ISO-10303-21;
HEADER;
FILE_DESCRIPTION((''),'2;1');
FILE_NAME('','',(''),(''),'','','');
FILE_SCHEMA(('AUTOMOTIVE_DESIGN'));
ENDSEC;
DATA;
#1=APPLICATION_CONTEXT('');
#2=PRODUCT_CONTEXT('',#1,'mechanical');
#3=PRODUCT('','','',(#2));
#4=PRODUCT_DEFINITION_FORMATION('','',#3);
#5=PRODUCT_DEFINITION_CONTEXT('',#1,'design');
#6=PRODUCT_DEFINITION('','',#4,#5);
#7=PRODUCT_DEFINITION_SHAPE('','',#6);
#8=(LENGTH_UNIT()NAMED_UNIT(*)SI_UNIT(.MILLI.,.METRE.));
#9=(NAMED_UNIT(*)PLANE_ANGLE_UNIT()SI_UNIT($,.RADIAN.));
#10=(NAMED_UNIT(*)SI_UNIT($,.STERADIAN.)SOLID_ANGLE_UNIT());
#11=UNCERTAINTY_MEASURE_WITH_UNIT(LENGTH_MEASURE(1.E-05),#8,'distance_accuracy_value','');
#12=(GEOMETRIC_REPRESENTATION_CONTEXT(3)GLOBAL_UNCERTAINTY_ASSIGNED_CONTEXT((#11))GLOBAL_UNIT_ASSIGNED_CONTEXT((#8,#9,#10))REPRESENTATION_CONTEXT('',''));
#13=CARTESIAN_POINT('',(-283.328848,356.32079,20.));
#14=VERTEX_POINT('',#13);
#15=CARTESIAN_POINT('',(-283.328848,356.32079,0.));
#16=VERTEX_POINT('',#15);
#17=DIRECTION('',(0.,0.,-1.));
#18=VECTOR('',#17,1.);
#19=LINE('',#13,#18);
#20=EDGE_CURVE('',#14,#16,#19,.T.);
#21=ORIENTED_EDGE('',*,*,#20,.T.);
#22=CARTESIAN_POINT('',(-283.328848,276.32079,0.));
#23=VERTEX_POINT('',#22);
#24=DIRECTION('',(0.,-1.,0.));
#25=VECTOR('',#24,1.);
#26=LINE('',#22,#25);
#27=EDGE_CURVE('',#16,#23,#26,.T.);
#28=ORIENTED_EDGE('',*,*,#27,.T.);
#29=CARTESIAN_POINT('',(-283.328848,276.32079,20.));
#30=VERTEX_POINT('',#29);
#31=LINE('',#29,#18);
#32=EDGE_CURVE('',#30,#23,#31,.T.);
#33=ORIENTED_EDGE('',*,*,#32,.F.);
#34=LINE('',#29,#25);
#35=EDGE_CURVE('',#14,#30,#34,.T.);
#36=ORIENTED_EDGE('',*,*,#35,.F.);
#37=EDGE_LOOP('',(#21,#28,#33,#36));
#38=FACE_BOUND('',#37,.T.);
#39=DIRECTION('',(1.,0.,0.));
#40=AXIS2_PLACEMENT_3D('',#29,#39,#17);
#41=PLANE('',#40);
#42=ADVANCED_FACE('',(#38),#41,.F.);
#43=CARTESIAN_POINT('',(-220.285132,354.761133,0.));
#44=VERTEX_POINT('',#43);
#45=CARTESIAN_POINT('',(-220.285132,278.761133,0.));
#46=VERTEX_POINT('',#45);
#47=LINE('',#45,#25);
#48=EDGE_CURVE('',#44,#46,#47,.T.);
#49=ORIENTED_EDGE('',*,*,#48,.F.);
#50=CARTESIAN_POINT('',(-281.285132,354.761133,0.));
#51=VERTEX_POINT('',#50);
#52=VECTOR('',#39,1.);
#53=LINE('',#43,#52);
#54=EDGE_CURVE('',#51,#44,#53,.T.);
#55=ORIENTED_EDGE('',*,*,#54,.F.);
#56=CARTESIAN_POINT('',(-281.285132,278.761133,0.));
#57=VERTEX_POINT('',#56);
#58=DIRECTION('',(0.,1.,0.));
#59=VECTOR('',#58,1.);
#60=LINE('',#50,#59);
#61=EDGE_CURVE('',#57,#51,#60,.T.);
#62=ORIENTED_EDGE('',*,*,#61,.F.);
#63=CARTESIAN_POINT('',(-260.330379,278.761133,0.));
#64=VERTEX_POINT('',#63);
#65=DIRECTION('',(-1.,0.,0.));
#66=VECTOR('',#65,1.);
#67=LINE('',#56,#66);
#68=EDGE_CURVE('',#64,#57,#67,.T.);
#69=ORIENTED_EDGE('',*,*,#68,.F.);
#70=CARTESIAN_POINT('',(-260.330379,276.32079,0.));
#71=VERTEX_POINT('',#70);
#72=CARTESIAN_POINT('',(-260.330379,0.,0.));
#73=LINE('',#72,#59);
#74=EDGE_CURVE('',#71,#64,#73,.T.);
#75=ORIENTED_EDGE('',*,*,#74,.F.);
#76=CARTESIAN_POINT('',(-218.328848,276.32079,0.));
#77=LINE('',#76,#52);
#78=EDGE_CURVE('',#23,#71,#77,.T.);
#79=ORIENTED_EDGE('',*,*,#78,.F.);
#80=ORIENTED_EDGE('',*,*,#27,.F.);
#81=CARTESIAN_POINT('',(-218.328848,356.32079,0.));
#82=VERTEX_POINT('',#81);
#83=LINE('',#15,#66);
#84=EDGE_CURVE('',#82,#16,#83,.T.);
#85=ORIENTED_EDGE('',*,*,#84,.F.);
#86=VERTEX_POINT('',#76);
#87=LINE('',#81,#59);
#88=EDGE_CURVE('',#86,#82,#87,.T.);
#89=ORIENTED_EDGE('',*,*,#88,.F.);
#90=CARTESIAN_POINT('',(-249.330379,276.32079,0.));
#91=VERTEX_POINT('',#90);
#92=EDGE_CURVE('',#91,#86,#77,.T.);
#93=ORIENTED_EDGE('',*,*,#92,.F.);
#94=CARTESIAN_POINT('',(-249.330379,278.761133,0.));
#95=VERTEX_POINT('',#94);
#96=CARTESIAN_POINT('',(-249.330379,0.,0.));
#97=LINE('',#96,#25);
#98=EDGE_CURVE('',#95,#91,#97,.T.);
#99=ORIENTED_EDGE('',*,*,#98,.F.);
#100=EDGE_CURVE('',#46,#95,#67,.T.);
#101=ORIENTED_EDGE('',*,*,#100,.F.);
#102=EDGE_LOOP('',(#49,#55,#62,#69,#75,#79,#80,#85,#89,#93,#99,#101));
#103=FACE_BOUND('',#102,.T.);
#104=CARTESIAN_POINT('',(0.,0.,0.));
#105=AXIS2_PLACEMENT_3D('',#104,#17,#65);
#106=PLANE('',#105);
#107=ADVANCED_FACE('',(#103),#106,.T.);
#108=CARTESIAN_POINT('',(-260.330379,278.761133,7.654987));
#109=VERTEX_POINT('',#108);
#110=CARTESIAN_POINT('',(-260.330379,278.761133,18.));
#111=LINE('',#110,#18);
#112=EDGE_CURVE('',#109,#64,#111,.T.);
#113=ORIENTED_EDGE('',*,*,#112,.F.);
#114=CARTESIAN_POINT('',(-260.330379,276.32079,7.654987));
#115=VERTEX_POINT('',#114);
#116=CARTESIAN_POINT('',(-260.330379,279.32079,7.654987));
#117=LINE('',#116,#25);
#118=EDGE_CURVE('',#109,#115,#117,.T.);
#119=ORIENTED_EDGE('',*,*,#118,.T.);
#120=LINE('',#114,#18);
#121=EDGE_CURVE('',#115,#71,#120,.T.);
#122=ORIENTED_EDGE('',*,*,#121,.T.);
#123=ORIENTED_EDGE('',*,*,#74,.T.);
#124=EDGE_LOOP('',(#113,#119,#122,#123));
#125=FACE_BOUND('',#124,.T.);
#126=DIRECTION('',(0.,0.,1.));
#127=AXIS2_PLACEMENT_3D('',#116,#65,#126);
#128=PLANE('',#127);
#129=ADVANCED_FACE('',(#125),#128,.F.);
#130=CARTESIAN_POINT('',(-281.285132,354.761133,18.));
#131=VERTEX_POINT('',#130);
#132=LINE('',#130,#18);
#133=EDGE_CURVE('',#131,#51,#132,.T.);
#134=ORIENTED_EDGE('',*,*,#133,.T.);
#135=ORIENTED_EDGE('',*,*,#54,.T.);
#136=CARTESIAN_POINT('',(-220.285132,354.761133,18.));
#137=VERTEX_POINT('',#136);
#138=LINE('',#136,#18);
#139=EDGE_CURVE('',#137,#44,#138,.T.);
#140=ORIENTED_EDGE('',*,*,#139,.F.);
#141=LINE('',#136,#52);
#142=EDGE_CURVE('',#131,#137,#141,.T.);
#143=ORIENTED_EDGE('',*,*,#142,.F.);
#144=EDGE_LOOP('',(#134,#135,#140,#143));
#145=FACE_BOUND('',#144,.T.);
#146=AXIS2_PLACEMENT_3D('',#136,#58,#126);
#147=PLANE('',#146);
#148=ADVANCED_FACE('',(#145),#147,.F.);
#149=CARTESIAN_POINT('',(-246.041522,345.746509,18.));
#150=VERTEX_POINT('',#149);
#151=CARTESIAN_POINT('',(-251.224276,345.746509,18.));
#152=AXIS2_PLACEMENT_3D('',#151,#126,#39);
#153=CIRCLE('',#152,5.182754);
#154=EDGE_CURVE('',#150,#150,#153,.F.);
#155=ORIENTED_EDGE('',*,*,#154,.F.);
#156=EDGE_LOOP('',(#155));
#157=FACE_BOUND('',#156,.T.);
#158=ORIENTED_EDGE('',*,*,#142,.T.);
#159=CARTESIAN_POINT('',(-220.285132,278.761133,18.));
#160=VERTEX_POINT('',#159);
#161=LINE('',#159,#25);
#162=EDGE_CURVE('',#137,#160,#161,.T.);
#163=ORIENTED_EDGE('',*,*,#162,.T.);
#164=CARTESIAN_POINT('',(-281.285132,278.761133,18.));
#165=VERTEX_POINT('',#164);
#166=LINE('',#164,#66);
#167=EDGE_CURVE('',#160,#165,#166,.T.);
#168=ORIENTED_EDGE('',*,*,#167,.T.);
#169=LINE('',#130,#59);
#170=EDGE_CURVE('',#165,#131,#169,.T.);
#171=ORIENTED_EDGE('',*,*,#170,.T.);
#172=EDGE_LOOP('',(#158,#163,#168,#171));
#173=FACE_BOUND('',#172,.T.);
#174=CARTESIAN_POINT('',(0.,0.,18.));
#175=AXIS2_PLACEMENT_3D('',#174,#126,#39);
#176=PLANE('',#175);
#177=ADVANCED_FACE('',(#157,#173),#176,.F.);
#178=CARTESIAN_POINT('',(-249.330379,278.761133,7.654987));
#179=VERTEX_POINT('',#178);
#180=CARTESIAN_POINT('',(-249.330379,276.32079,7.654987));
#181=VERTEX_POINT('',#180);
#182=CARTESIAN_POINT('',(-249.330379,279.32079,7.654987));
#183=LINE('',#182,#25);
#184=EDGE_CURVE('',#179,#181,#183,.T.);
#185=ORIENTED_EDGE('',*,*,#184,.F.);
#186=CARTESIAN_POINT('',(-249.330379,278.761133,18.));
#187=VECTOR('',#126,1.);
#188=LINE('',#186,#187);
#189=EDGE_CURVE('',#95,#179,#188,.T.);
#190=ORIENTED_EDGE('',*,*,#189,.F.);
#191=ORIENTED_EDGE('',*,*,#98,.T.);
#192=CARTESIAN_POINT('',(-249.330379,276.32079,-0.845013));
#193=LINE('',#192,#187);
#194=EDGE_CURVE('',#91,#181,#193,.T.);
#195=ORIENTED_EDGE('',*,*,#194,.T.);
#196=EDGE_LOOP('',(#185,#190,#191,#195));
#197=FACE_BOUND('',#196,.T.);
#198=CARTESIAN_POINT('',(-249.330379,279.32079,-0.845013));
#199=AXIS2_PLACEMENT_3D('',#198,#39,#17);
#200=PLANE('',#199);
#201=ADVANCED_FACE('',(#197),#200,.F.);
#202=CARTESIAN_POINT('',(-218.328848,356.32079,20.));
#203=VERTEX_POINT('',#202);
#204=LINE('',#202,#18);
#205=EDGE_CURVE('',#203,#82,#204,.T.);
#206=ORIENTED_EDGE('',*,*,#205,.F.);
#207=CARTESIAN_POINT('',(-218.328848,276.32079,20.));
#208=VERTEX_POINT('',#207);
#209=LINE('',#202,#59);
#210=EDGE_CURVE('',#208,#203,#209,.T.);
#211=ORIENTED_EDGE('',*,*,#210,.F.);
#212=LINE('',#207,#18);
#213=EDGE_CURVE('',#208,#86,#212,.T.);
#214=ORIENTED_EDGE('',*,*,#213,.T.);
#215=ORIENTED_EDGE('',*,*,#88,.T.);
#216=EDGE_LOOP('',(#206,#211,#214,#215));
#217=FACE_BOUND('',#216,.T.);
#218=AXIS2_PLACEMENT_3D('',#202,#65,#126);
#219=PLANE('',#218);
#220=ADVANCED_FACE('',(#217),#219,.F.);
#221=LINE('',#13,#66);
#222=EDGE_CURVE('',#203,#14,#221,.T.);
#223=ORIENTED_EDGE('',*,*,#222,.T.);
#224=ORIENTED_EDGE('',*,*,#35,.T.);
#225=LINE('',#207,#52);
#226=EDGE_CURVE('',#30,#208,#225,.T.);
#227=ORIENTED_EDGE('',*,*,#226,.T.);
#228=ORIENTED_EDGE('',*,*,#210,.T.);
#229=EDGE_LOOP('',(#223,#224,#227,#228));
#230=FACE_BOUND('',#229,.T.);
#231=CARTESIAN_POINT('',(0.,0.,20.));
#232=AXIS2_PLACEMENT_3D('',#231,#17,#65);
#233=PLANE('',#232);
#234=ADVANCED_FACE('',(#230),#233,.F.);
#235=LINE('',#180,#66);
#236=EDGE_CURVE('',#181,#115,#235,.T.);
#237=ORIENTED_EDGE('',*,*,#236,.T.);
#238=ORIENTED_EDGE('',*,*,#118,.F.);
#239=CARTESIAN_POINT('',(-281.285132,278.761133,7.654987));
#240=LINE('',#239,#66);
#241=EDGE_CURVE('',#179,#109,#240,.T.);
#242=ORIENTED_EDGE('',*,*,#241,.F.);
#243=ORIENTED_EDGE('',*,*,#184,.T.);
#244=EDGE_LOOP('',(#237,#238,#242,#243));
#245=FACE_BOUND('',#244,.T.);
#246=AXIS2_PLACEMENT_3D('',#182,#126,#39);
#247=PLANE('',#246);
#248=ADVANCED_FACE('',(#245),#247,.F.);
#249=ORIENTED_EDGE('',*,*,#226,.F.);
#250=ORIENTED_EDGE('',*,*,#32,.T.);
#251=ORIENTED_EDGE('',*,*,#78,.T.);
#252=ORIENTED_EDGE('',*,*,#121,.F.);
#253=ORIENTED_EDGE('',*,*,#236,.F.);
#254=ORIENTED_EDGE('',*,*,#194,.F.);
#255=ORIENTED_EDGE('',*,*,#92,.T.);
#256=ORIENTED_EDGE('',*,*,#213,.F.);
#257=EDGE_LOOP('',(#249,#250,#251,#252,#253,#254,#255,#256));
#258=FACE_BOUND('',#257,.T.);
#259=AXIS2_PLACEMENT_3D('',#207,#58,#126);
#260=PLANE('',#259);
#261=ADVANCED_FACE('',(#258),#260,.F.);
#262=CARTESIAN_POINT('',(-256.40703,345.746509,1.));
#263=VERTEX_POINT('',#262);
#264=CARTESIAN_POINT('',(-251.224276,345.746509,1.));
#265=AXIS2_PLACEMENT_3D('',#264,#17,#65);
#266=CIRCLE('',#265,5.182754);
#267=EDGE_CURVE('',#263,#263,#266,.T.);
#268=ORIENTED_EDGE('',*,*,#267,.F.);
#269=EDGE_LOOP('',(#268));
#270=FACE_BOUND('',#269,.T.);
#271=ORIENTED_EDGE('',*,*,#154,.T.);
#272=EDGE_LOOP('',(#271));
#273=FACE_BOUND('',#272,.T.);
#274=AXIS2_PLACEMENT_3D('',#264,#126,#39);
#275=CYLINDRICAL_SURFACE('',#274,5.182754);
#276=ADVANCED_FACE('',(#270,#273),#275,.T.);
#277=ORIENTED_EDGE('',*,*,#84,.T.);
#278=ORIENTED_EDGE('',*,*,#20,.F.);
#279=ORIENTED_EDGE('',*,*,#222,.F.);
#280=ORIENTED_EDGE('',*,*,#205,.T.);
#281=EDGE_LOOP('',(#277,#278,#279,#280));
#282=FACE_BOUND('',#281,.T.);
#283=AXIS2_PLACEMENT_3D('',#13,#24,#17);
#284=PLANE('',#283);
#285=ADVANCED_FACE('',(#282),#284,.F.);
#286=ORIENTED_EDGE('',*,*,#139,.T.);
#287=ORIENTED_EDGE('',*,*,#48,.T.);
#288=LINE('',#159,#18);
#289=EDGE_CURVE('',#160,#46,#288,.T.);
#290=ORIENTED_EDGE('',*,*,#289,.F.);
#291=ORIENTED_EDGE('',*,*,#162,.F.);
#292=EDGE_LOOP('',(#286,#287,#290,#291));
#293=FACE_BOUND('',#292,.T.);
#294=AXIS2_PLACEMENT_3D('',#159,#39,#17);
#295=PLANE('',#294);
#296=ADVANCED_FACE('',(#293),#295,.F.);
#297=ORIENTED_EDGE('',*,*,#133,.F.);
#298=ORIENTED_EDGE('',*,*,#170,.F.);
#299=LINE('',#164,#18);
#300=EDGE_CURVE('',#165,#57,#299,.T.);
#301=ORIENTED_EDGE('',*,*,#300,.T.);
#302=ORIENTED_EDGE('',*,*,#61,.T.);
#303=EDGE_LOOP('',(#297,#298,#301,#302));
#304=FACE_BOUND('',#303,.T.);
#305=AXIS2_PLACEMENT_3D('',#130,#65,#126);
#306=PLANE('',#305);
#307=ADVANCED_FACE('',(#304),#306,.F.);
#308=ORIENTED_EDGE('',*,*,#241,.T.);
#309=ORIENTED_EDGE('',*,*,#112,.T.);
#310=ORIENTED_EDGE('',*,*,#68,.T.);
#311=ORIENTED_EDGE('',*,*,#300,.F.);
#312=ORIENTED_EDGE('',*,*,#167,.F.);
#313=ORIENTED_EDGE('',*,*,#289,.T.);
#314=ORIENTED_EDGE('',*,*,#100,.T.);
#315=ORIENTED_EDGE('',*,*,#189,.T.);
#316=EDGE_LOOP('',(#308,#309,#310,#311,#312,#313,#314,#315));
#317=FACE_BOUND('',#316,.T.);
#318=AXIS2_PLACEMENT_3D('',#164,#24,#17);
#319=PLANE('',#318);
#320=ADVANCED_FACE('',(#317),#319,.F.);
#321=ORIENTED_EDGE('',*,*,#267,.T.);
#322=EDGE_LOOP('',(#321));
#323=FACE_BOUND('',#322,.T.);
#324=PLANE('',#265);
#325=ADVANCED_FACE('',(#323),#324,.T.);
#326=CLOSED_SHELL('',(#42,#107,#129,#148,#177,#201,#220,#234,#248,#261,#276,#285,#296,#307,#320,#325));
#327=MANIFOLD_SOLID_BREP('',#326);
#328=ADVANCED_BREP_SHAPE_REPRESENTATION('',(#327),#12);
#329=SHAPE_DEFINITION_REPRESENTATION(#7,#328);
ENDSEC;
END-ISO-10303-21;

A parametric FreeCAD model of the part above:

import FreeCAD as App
import Part
import Sketcher
from FreeCAD import Vector


def add_polygon(sketch, points):
    """Adds a closed chain of lines whose ends are joined by coincident constraints."""
    first, n = sketch.GeometryCount, len(points)
    for a, b in zip(points, points[1:] + points[:1]):
        sketch.addGeometry(Part.LineSegment(App.Vector(*a, 0), App.Vector(*b, 0)), False)
    for i in range(n):
        sketch.addConstraint(Sketcher.Constraint("Coincident", first + i, 2, first + (i + 1) % n, 1))

doc = App.newDocument("Part")
body = doc.addObject("PartDesign::Body", "Body")

# Sketch on XY plane
sketch1 = body.newObject("Sketcher::SketchObject", "Sketch")
sketch1.AttachmentSupport = (doc.getObject("XY_Plane"), [""])
sketch1.MapMode = "FlatFace"
add_polygon(sketch1, [(-283, 356), (-283, 276), (-218, 276), (-218, 356)])  # lines 0-3
sketch1.addConstraint([
    Sketcher.Constraint("Vertical", 0),
    Sketcher.Constraint("Horizontal", 1),
    Sketcher.Constraint("Vertical", 2),
    Sketcher.Constraint("Horizontal", 3),
    Sketcher.Constraint("DistanceX", 1, 1, 1, 2, 65.0),
    Sketcher.Constraint("DistanceY", 0, 2, 0, 1, 80.0),
    Sketcher.Constraint("DistanceX", 0, 2, -1, 1, 283.328848),
    Sketcher.Constraint("DistanceY", -1, 1, 0, 2, 276.32079),
])
pad1 = body.newObject("PartDesign::Pad", "Pad")
pad1.Profile = sketch1
pad1.Length = 20

# Sketch on XY plane
sketch2 = body.newObject("Sketcher::SketchObject", "Sketch001")
sketch2.AttachmentSupport = (doc.getObject("XY_Plane"), [""])
sketch2.MapMode = "FlatFace"
add_polygon(sketch2, [(-220, 355), (-220, 279), (-281, 279), (-281, 355)])  # lines 0-3
sketch2.addConstraint([
    Sketcher.Constraint("Vertical", 0),
    Sketcher.Constraint("Horizontal", 1),
    Sketcher.Constraint("Vertical", 2),
    Sketcher.Constraint("Horizontal", 3),
    Sketcher.Constraint("DistanceX", 1, 2, 1, 1, 61.0),
    Sketcher.Constraint("DistanceY", 0, 2, 0, 1, 76.0),
    Sketcher.Constraint("DistanceX", 0, 2, -1, 1, 220.285132),
    Sketcher.Constraint("DistanceY", -1, 1, 0, 2, 278.761133),
])
pocket1 = body.newObject("PartDesign::Pocket", "Pocket")
pocket1.Profile = sketch2
pocket1.Length = 18
pocket1.Reversed = True

# Sketch on XZ plane
sketch3 = body.newObject("Sketcher::SketchObject", "Sketch002")
sketch3.AttachmentSupport = (doc.getObject("XZ_Plane"), [""])
sketch3.MapMode = "FlatFace"
sketch3.AttachmentOffset = App.Placement(Vector(0, 0, -276.32079), App.Rotation())
add_polygon(sketch3, [(-249, -1), (-249, 8), (-260, 8), (-260, -1)])  # lines 0-3
sketch3.addConstraint([
    Sketcher.Constraint("Vertical", 0),
    Sketcher.Constraint("Horizontal", 1),
    Sketcher.Constraint("Vertical", 2),
    Sketcher.Constraint("Horizontal", 3),
    Sketcher.Constraint("DistanceX", 1, 2, 1, 1, 11.0),
    Sketcher.Constraint("DistanceY", 0, 1, 0, 2, 8.5),
    Sketcher.Constraint("DistanceX", 0, 2, -1, 1, 249.330379),
    Sketcher.Constraint("DistanceY", -1, 1, 0, 2, 7.654987),
])
pocket2 = body.newObject("PartDesign::Pocket", "Pocket001")
pocket2.Profile = sketch3
pocket2.Length = 3

# Sketch on XY plane
sketch4 = body.newObject("Sketcher::SketchObject", "Sketch003")
sketch4.AttachmentSupport = (doc.getObject("XY_Plane"), [""])
sketch4.MapMode = "FlatFace"
sketch4.AttachmentOffset = App.Placement(Vector(0, 0, 18), App.Rotation())
sketch4.addGeometry(Part.Circle(Vector(-251, 346, 0), Vector(0, 0, 1), 5), False)
sketch4.addConstraint([
    Sketcher.Constraint("Diameter", 0, 10.365508),
    Sketcher.Constraint("DistanceY", -1, 1, 0, 3, 345.746509),
    Sketcher.Constraint("DistanceX", 0, 3, -1, 1, 251.224276),
])
pad2 = body.newObject("PartDesign::Pad", "Pad001")
pad2.Profile = sketch4
pad2.Length = 17
pad2.Reversed = True

doc.recompute()
